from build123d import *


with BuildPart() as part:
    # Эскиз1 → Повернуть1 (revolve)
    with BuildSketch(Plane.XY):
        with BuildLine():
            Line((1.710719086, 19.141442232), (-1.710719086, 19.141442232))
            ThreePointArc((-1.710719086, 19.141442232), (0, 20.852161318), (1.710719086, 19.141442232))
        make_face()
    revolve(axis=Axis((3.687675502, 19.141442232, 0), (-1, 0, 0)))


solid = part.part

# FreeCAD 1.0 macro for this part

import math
import FreeCAD as App
import Part
import Sketcher

doc = App.newDocument("Part")
params = doc.addObject("Spreadsheet::Sheet", "Params")
for row, (alias, value) in enumerate([
    ("revolution_angle", "360 deg"),
], start=1):
    params.set(f"A{row}", alias)
    params.set(f"B{row}", "=" + value)
    params.setAlias(f"B{row}", alias)

body = doc.addObject("PartDesign::Body", "Body")

sketch1 = doc.addObject("Sketcher::SketchObject", "Sketch")
body.addObject(sketch1)
sketch1.AttachmentSupport = (doc.XY_Plane, [""])
sketch1.MapMode = "FlatFace"
sketch1.addGeometry([
    Part.LineSegment(App.Vector(-1.7, 19.1, 0), App.Vector(1.7, 19.1, 0)),
    Part.ArcOfCircle(Part.Circle(App.Vector(0, 19.1, 0), App.Vector(0, 0, 1), 1.7), math.radians(0), math.radians(180)),
], False)
sketch1.addGeometry(Part.LineSegment(App.Vector(1.7, 19.1, 0), App.Vector(-1.7, 19.1, 0)), True)
sketch1.addConstraint([
    Sketcher.Constraint("Coincident", 0, 1, 1, 2),
    Sketcher.Constraint("Coincident", 1, 1, 0, 2),
    Sketcher.Constraint("Horizontal", 0),
    Sketcher.Constraint("Horizontal", 2),
    Sketcher.Constraint("Coincident", 2, 1, 1, 1),
    Sketcher.Constraint("PointOnObject", 1, 3, -2),
    Sketcher.Constraint("Horizontal", 1, 3, 0, 1),
    Sketcher.Constraint("Equal", 0, 2),
    Sketcher.Constraint("Radius", 1, 1.710719),
    Sketcher.Constraint("DistanceY", -1, 1, 1, 3, 19.141442),
])
revolution = doc.addObject("PartDesign::Revolution", "Revolution")
body.addObject(revolution)
revolution.Profile = sketch1
revolution.ReferenceAxis = (sketch1, ["Axis0"])
revolution.setExpression("Angle", "Params.revolution_angle")

doc.recompute()
